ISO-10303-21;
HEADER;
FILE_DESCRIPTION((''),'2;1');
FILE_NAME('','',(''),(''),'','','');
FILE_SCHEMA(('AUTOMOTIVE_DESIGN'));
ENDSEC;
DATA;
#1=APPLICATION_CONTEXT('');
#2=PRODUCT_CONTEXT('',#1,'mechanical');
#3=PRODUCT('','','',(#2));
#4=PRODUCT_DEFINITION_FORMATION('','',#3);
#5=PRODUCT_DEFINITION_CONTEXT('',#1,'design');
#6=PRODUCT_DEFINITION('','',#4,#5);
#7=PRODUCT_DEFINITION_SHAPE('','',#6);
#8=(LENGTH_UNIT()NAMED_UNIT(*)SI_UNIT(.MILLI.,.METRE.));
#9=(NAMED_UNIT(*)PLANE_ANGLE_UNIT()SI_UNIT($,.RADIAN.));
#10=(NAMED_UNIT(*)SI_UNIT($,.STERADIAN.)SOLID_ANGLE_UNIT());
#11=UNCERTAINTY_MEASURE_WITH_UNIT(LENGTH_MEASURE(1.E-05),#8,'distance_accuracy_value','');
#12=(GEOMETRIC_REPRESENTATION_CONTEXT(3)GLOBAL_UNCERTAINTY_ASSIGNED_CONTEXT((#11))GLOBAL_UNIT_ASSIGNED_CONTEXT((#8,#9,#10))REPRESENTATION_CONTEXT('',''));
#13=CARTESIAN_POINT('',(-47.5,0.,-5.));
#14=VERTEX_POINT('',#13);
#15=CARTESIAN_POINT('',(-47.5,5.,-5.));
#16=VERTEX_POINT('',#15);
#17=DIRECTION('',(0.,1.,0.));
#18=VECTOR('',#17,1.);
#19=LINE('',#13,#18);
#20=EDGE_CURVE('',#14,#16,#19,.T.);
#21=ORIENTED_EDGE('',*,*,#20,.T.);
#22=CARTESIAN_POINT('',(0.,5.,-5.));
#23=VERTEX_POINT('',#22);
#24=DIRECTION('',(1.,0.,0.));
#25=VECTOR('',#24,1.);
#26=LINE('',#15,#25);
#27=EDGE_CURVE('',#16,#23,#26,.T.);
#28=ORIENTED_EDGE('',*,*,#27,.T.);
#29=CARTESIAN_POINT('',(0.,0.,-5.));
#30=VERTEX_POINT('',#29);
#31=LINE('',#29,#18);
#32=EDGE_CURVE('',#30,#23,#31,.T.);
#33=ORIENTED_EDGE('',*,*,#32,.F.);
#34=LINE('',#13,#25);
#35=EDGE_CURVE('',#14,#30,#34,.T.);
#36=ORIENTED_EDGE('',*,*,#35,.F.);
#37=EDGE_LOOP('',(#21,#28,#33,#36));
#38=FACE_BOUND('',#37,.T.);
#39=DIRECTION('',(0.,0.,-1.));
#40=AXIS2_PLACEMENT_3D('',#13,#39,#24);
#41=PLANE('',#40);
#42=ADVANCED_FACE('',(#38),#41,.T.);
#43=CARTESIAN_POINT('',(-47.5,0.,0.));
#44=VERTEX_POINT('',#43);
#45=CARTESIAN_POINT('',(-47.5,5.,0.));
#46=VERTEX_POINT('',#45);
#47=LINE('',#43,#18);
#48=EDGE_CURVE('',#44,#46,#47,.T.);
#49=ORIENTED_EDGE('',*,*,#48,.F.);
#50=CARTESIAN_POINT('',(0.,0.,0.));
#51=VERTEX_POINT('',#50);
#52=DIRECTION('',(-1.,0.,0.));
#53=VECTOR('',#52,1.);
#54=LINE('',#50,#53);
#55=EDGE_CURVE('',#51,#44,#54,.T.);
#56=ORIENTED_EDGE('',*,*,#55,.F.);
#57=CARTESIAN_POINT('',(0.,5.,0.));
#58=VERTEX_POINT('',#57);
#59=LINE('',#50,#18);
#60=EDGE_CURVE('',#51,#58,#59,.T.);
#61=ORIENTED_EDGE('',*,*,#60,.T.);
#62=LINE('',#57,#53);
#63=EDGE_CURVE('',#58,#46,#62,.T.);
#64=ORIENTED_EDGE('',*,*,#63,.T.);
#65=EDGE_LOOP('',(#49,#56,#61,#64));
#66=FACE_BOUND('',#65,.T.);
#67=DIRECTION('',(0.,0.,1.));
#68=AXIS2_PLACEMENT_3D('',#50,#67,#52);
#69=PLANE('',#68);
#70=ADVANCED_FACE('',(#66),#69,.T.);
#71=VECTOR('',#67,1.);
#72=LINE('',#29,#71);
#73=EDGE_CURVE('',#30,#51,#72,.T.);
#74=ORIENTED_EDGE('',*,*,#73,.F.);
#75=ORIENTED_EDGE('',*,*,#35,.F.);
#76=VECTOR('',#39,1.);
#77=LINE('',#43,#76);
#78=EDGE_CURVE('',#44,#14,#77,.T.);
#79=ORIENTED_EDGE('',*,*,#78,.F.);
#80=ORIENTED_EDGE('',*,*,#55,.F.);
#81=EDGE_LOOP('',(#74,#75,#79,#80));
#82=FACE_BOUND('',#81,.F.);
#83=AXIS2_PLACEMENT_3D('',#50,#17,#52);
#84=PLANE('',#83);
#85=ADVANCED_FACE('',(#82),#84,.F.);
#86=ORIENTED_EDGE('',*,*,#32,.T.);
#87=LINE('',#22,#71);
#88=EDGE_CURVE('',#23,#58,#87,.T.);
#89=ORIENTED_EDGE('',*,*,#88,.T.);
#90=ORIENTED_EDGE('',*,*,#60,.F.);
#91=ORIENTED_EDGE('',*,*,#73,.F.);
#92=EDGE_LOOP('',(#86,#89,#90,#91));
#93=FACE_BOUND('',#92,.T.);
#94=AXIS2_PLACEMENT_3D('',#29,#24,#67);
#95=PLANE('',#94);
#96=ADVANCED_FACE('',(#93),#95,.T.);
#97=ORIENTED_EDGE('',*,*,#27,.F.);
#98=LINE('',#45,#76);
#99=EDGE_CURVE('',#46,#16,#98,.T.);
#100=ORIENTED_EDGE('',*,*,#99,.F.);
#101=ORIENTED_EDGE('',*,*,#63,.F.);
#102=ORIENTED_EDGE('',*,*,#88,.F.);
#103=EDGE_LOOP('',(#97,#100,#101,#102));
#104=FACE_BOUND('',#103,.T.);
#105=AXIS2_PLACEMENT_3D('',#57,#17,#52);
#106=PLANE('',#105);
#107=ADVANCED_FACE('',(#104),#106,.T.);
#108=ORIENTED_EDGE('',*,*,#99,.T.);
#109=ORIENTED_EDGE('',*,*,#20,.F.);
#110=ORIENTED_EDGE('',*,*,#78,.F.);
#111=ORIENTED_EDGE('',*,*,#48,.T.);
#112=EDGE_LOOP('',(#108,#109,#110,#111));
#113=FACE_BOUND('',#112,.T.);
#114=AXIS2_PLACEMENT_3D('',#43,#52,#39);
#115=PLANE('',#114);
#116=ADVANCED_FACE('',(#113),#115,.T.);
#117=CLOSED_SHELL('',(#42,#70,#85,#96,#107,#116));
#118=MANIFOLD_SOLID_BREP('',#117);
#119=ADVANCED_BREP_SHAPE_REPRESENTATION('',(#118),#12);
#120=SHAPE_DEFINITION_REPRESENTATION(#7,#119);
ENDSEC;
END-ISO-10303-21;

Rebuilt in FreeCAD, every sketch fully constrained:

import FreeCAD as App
import Part
import Sketcher
Q = App.Units.Quantity


def add_polygon(sketch, points):
    """Adds a closed chain of lines whose ends are joined by coincident constraints."""
    first, n = sketch.GeometryCount, len(points)
    for a, b in zip(points, points[1:] + points[:1]):
        sketch.addGeometry(Part.LineSegment(App.Vector(*a, 0), App.Vector(*b, 0)), False)
    for i in range(n):
        sketch.addConstraint(Sketcher.Constraint("Coincident", first + i, 2, first + (i + 1) % n, 1))

doc = App.newDocument("Part")
body = doc.addObject("PartDesign::Body", "Body")

# Sketch on XZ plane
sketch1 = body.newObject("Sketcher::SketchObject", "Sketch")
sketch1.AttachmentSupport = (doc.getObject("XZ_Plane"), [""])
sketch1.MapMode = "FlatFace"
add_polygon(sketch1, [(-48, 0), (0, 0), (0, -5), (-48, -5)])  # lines 0-3
sketch1.addConstraint([
    Sketcher.Constraint("Horizontal", 0),
    Sketcher.Constraint("Vertical", 1),
    Sketcher.Constraint("Horizontal", 2),
    Sketcher.Constraint("Vertical", 3),
    Sketcher.Constraint("Coincident", 0, 2, -1, 1),
    Sketcher.Constraint("DistanceY", 1, 2, 1, 1, Q("5 mm")),
    Sketcher.Constraint("DistanceX", 0, 1, 0, 2, Q("47.5 mm")),
])
pad1 = body.newObject("PartDesign::Pad", "Pad")
pad1.Profile = sketch1
pad1.Length = 5
pad1.Reversed = True

doc.recompute()
